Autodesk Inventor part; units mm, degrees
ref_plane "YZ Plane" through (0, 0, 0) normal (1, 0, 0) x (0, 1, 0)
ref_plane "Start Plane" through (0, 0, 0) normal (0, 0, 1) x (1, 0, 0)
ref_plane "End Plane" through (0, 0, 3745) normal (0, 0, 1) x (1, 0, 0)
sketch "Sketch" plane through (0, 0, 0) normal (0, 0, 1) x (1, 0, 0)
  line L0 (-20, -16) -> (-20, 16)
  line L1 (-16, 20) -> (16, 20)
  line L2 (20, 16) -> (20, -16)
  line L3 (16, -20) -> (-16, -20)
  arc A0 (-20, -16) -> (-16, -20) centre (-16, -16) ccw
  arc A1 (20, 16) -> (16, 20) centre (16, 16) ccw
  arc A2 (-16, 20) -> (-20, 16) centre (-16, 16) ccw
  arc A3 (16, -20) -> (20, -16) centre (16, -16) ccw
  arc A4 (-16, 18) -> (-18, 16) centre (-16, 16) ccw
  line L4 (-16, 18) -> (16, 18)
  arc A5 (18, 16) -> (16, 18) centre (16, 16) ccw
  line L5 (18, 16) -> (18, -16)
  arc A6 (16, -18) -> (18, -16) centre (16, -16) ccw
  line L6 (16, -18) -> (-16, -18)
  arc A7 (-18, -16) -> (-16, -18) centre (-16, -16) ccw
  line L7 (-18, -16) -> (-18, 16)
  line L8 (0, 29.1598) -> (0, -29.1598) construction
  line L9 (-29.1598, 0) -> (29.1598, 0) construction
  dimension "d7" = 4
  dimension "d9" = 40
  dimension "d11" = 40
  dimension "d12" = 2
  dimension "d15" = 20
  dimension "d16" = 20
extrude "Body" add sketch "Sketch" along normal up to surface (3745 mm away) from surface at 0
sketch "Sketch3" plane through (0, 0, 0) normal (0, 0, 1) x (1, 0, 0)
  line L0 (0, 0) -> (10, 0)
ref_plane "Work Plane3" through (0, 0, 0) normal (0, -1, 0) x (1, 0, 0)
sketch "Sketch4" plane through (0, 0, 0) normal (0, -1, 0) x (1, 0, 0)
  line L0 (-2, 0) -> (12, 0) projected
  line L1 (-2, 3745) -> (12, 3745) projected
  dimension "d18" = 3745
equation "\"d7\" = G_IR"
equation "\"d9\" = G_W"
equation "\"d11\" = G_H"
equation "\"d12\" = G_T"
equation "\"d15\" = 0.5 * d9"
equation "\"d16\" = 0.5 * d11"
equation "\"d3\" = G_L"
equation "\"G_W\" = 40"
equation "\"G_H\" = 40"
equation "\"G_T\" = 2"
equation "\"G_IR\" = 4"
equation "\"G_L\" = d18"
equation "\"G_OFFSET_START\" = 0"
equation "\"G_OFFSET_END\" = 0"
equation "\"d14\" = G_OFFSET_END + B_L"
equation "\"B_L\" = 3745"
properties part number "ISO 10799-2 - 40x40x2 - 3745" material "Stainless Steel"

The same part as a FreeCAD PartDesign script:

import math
import FreeCAD as App
import Part
import Sketcher

V = App.Vector

doc = App.newDocument("Part")
params = doc.addObject("Spreadsheet::Sheet", "Params")
for row, (alias, value) in enumerate([
    ("sketch1_radius", "4 mm"),
    ("sketch1_radius2", "2 mm"),
    ("pad1_length", "3745 mm"),
], start=1):
    params.set(f"A{row}", alias)
    params.set(f"B{row}", "=" + value)
    params.setAlias(f"B{row}", alias)

body = doc.addObject("PartDesign::Body", "Body")

# Sketch on XY plane
sketch1 = body.newObject("Sketcher::SketchObject", "Sketch")
sketch1.AttachmentSupport = (doc.getObject("XY_Plane"), [""])
sketch1.MapMode = "FlatFace"
sketch1.addGeometry([
    Part.LineSegment(V(-20, 16, 0), V(-20, -16, 0)),  # 0
    Part.ArcOfCircle(Part.Circle(V(-16, -16, 0), V(0, 0, 1), 4), math.radians(180), math.radians(270)),  # 1
    Part.LineSegment(V(-16, -20, 0), V(16, -20, 0)),  # 2
    Part.ArcOfCircle(Part.Circle(V(16, -16, 0), V(0, 0, 1), 4), math.radians(-90), math.radians(0)),  # 3
    Part.LineSegment(V(20, -16, 0), V(20, 16, 0)),  # 4
    Part.ArcOfCircle(Part.Circle(V(16, 16, 0), V(0, 0, 1), 4), math.radians(0), math.radians(90)),  # 5
    Part.LineSegment(V(16, 20, 0), V(-16, 20, 0)),  # 6
    Part.ArcOfCircle(Part.Circle(V(-16, 16, 0), V(0, 0, 1), 4), math.radians(90), math.radians(180)),  # 7
    Part.ArcOfCircle(Part.Circle(V(-16, 16, 0), V(0, 0, 1), 2), math.radians(90), math.radians(180)),  # 8
    Part.LineSegment(V(-16, 18, 0), V(16, 18, 0)),  # 9
    Part.ArcOfCircle(Part.Circle(V(16, 16, 0), V(0, 0, 1), 2), math.radians(0), math.radians(90)),  # 10
    Part.LineSegment(V(18, 16, 0), V(18, -16, 0)),  # 11
    Part.ArcOfCircle(Part.Circle(V(16, -16, 0), V(0, 0, 1), 2), math.radians(-90), math.radians(0)),  # 12
    Part.LineSegment(V(16, -18, 0), V(-16, -18, 0)),  # 13
    Part.ArcOfCircle(Part.Circle(V(-16, -16, 0), V(0, 0, 1), 2), math.radians(180), math.radians(270)),  # 14
    Part.LineSegment(V(-18, -16, 0), V(-18, 16, 0)),  # 15
], False)
sketch1.addConstraint([
    Sketcher.Constraint("Tangent", 0, 2, 1, 1),
    Sketcher.Constraint("Tangent", 1, 2, 2, 1),
    Sketcher.Constraint("Tangent", 2, 2, 3, 1),
    Sketcher.Constraint("Tangent", 3, 2, 4, 1),
    Sketcher.Constraint("Tangent", 4, 2, 5, 1),
    Sketcher.Constraint("Tangent", 5, 2, 6, 1),
    Sketcher.Constraint("Tangent", 6, 2, 7, 1),
    Sketcher.Constraint("Tangent", 7, 2, 0, 1),
    Sketcher.Constraint("Tangent", 8, 1, 9, 1),
    Sketcher.Constraint("Tangent", 9, 2, 10, 2),
    Sketcher.Constraint("Tangent", 10, 1, 11, 1),
    Sketcher.Constraint("Tangent", 11, 2, 12, 2),
    Sketcher.Constraint("Tangent", 12, 1, 13, 1),
    Sketcher.Constraint("Tangent", 13, 2, 14, 2),
    Sketcher.Constraint("Tangent", 14, 1, 15, 1),
    Sketcher.Constraint("Tangent", 15, 2, 8, 2),
    Sketcher.Constraint("Vertical", 0),
    Sketcher.Constraint("Horizontal", 2),
    Sketcher.Constraint("Vertical", 4),
    Sketcher.Constraint("Horizontal", 6),
    Sketcher.Constraint("Horizontal", 9),
    Sketcher.Constraint("Vertical", 11),
    Sketcher.Constraint("Horizontal", 13),
    Sketcher.Constraint("Vertical", 15),
    Sketcher.Constraint("Coincident", 8, 3, 7, 3),
    Sketcher.Constraint("Coincident", 10, 3, 5, 3),
    Sketcher.Constraint("Coincident", 12, 3, 3, 3),
    Sketcher.Constraint("Equal", 1, 3),
    Sketcher.Constraint("Equal", 3, 5),
    Sketcher.Constraint("Equal", 5, 7),
    Sketcher.Constraint("Equal", 12, 14),
    Sketcher.Constraint("Symmetric", 1, 3, 5, 3, -1, 1),
    Sketcher.Constraint("Equal", 13, 0),
    Sketcher.Constraint("Radius", 1, 4.0),
    Sketcher.Constraint("Radius", 8, 2.0),
    Sketcher.Constraint("DistanceX", 0, 2, -1, 1, 20.0),
])
sketch1.setExpression("Constraints[33]", "Params.sketch1_radius")
sketch1.setExpression("Constraints[34]", "Params.sketch1_radius2")
pad1 = body.newObject("PartDesign::Pad", "Pad")
pad1.Profile = sketch1
pad1.setExpression("Length", "Params.pad1_length")

doc.recompute()
